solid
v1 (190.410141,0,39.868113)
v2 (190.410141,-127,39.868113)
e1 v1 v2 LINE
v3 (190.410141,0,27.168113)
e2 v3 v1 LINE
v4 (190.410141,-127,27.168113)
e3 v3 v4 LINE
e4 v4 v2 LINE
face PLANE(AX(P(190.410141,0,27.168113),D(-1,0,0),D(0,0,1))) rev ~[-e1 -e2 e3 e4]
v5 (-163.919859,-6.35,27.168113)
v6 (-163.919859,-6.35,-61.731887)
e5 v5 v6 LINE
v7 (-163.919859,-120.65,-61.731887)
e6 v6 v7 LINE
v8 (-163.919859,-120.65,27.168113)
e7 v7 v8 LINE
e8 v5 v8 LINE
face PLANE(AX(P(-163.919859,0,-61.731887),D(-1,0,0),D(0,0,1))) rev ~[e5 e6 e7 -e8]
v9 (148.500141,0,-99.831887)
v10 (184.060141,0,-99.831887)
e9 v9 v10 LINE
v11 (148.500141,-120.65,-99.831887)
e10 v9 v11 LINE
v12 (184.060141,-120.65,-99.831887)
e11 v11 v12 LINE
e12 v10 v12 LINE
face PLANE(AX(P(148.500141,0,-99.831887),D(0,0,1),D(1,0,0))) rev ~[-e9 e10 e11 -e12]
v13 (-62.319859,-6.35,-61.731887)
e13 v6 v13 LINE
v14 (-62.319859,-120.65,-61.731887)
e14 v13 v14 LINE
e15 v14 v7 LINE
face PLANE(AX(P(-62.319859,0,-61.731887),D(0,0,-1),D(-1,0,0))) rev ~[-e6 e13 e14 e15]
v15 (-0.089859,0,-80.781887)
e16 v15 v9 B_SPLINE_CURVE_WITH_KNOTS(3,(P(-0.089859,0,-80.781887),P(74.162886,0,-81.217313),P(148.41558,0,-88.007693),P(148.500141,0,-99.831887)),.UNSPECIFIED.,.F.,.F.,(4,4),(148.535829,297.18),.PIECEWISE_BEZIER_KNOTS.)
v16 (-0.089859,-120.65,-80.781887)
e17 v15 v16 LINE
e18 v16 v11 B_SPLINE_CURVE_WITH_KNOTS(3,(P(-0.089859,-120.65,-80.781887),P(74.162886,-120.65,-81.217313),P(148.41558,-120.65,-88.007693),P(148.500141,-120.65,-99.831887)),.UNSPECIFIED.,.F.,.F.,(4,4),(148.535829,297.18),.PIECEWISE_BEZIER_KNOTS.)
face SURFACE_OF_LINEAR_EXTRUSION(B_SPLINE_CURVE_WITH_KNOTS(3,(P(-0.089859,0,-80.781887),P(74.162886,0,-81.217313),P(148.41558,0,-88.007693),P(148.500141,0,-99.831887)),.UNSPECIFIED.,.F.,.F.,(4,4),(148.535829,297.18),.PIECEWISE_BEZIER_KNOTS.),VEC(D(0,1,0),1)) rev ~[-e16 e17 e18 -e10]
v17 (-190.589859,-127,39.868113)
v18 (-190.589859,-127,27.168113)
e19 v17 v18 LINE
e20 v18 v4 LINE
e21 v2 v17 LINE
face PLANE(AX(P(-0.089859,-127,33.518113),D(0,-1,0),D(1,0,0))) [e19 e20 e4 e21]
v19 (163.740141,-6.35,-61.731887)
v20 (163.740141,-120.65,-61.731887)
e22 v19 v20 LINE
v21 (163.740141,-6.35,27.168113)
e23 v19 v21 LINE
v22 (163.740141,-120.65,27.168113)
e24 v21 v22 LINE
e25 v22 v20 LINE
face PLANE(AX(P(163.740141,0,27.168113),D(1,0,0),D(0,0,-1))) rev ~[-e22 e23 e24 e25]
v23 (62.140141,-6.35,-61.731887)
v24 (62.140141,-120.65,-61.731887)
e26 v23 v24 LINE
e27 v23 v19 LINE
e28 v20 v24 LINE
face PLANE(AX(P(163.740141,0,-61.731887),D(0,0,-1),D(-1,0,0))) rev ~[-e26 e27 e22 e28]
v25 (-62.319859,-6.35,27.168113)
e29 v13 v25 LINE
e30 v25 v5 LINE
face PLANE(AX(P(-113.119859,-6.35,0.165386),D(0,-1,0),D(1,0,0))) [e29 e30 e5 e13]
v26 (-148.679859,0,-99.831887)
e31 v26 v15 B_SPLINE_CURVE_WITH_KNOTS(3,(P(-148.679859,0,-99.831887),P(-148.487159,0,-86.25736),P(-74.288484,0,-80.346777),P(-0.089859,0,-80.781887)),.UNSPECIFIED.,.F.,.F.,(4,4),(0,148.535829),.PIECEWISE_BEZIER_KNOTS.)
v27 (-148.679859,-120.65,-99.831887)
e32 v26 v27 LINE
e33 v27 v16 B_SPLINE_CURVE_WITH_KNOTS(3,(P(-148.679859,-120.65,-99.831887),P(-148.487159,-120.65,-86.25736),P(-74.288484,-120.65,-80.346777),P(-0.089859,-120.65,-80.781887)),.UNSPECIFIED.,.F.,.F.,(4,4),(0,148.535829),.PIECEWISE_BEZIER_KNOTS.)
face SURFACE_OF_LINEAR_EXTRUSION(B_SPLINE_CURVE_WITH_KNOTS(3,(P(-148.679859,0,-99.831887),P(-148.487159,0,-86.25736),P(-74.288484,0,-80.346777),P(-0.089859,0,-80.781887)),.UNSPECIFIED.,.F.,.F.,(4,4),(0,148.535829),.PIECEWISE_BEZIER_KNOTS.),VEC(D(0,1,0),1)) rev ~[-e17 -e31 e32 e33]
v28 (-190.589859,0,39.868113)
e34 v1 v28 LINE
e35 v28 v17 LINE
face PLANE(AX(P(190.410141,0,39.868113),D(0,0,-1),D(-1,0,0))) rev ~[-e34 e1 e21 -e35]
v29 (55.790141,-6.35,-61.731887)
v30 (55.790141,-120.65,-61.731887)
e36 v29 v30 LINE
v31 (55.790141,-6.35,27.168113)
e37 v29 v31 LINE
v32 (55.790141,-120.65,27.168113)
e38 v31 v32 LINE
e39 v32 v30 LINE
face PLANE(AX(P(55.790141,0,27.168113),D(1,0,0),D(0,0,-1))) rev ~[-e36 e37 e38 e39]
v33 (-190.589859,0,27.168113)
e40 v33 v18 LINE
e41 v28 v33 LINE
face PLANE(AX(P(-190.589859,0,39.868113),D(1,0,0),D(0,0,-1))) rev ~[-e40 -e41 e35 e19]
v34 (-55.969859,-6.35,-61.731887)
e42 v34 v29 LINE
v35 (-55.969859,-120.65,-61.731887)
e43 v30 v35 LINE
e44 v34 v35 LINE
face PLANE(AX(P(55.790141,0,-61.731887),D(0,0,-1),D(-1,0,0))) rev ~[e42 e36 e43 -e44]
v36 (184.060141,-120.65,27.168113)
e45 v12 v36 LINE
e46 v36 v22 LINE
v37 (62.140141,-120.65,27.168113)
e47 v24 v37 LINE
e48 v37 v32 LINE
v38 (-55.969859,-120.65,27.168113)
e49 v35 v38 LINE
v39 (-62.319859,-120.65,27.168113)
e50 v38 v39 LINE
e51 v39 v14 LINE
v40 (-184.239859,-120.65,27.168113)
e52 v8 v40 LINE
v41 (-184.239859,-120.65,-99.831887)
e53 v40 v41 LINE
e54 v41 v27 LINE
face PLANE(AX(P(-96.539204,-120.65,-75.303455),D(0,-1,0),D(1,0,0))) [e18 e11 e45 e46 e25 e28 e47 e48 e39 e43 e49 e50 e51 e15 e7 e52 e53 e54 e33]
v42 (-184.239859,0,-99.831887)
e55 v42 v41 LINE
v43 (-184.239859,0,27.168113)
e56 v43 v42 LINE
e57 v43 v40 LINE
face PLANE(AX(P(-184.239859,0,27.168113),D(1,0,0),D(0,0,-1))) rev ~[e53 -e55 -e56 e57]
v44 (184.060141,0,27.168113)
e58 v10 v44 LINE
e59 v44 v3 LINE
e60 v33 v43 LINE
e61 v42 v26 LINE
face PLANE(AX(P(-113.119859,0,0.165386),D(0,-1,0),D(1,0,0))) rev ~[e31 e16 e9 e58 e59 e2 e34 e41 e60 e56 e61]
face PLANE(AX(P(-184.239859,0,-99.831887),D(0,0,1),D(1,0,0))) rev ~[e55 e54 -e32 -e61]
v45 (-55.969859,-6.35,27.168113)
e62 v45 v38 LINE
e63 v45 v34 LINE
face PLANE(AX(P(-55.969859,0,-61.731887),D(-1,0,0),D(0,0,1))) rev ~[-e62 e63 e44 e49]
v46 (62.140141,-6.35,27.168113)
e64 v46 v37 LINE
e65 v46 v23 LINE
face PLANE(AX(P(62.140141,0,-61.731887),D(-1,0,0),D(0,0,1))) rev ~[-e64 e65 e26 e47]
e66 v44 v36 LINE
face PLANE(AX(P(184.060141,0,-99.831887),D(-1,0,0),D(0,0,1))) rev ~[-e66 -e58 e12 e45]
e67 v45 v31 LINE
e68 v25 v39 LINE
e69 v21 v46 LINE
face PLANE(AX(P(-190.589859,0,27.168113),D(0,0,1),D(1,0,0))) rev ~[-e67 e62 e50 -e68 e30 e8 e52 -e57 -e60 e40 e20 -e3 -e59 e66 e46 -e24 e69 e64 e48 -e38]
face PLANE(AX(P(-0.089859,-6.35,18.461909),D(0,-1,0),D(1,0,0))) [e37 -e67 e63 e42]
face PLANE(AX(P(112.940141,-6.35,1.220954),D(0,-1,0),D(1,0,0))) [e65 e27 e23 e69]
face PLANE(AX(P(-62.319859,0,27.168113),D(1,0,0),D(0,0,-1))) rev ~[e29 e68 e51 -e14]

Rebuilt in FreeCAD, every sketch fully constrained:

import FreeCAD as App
import Part
import Sketcher
from FreeCAD import Vector
Q = App.Units.Quantity


def add_polygon(sketch, points):
    """Adds a closed chain of lines whose ends are joined by coincident constraints."""
    first, n = sketch.GeometryCount, len(points)
    for a, b in zip(points, points[1:] + points[:1]):
        sketch.addGeometry(Part.LineSegment(App.Vector(*a, 0), App.Vector(*b, 0)), False)
    for i in range(n):
        sketch.addConstraint(Sketcher.Constraint("Coincident", first + i, 2, first + (i + 1) % n, 1))

doc = App.newDocument("Part")
body = doc.addObject("PartDesign::Body", "Body")

# Sketch on XZ plane
sketch1 = body.newObject("Sketcher::SketchObject", "Sketch")
sketch1.AttachmentSupport = (doc.getObject("XZ_Plane"), [""])
sketch1.MapMode = "FlatFace"
add_polygon(sketch1, [(190, 40), (-191, 40), (-191, 27), (190, 27)])  # lines 0-3
sketch1.addConstraint([
    Sketcher.Constraint("Horizontal", 0),
    Sketcher.Constraint("Vertical", 1),
    Sketcher.Constraint("Horizontal", 2),
    Sketcher.Constraint("Vertical", 3),
    Sketcher.Constraint("DistanceX", 0, 2, 0, 1, Q("15 in")),
    Sketcher.Constraint("DistanceY", 1, 2, 1, 1, Q("0.5 in")),
    Sketcher.Constraint("DistanceX", 0, 2, -1, 1, 190.589859),
    Sketcher.Constraint("DistanceY", -1, 1, 0, 2, 39.868113),
])
pad1 = body.newObject("PartDesign::Pad", "Pad")
pad1.Profile = sketch1
pad1.Length = Q("5 in")

# Sketch on XZ plane
sketch2 = body.newObject("Sketcher::SketchObject", "Sketch001")
sketch2.AttachmentSupport = (doc.getObject("XZ_Plane"), [""])
sketch2.MapMode = "FlatFace"
sketch2.addGeometry([
    Part.LineSegment(Vector(-184.239859, -99.831887, 0), Vector(-148.679859, -99.831887, 0)),  # 0
    Part.BSplineCurve([Vector(-148.679859, -99.831887, 0), Vector(-148.487159, -86.25736, 0), Vector(-74.288484, -80.346777, 0), Vector(-0.089859, -80.781887, 0)], [4, 4], [0, 148.535829], False, 3, [1, 1, 1, 1], False),  # 1
    Part.BSplineCurve([Vector(-0.089859, -80.781887, 0), Vector(74.162886, -81.217313, 0), Vector(148.41558, -88.007693, 0), Vector(148.500141, -99.831887, 0)], [4, 4], [148.535829, 297.18], False, 3, [1, 1, 1, 1], False),  # 2
    Part.LineSegment(Vector(148.500141, -99.831887, 0), Vector(184.060141, -99.831887, 0)),  # 3
    Part.LineSegment(Vector(184.060141, -99.831887, 0), Vector(184.060141, 27.168113, 0)),  # 4
    Part.LineSegment(Vector(184.060141, 27.168113, 0), Vector(163.740141, 27.168113, 0)),  # 5
    Part.LineSegment(Vector(163.740141, 27.168113, 0), Vector(163.740141, -61.731887, 0)),  # 6
    Part.LineSegment(Vector(163.740141, -61.731887, 0), Vector(62.140141, -61.731887, 0)),  # 7
    Part.LineSegment(Vector(62.140141, -61.731887, 0), Vector(62.140141, 27.168113, 0)),  # 8
    Part.LineSegment(Vector(62.140141, 27.168113, 0), Vector(55.790141, 27.168113, 0)),  # 9
    Part.LineSegment(Vector(55.790141, 27.168113, 0), Vector(55.790141, -61.731887, 0)),  # 10
    Part.LineSegment(Vector(55.790141, -61.731887, 0), Vector(-55.969859, -61.731887, 0)),  # 11
    Part.LineSegment(Vector(-55.969859, -61.731887, 0), Vector(-55.969859, 27.168113, 0)),  # 12
    Part.LineSegment(Vector(-55.969859, 27.168113, 0), Vector(-62.319859, 27.168113, 0)),  # 13
    Part.LineSegment(Vector(-62.319859, 27.168113, 0), Vector(-62.319859, -61.731887, 0)),  # 14
    Part.LineSegment(Vector(-62.319859, -61.731887, 0), Vector(-163.919859, -61.731887, 0)),  # 15
    Part.LineSegment(Vector(-163.919859, -61.731887, 0), Vector(-163.919859, 27.168113, 0)),  # 16
    Part.LineSegment(Vector(-163.919859, 27.168113, 0), Vector(-184.239859, 27.168113, 0)),  # 17
    Part.LineSegment(Vector(-184.239859, 27.168113, 0), Vector(-184.239859, -99.831887, 0)),  # 18
], False)
sketch2.addConstraint([
    Sketcher.Constraint("Block", 1),
    Sketcher.Constraint("Block", 2),
    Sketcher.Constraint("Coincident", 0, 2, 1, 1),
    Sketcher.Constraint("Coincident", 2, 2, 3, 1),
    Sketcher.Constraint("Coincident", 3, 2, 4, 1),
    Sketcher.Constraint("Coincident", 4, 2, 5, 1),
    Sketcher.Constraint("Coincident", 5, 2, 6, 1),
    Sketcher.Constraint("Coincident", 6, 2, 7, 1),
    Sketcher.Constraint("Coincident", 7, 2, 8, 1),
    Sketcher.Constraint("Coincident", 8, 2, 9, 1),
    Sketcher.Constraint("Coincident", 9, 2, 10, 1),
    Sketcher.Constraint("Coincident", 10, 2, 11, 1),
    Sketcher.Constraint("Coincident", 11, 2, 12, 1),
    Sketcher.Constraint("Coincident", 12, 2, 13, 1),
    Sketcher.Constraint("Coincident", 13, 2, 14, 1),
    Sketcher.Constraint("Coincident", 14, 2, 15, 1),
    Sketcher.Constraint("Coincident", 15, 2, 16, 1),
    Sketcher.Constraint("Coincident", 16, 2, 17, 1),
    Sketcher.Constraint("Coincident", 17, 2, 18, 1),
    Sketcher.Constraint("Coincident", 18, 2, 0, 1),
    Sketcher.Constraint("Horizontal", 0),
    Sketcher.Constraint("Horizontal", 3),
    Sketcher.Constraint("Vertical", 4),
    Sketcher.Constraint("Horizontal", 5),
    Sketcher.Constraint("Vertical", 6),
    Sketcher.Constraint("Horizontal", 7),
    Sketcher.Constraint("Vertical", 8),
    Sketcher.Constraint("Horizontal", 9),
    Sketcher.Constraint("Vertical", 10),
    Sketcher.Constraint("Horizontal", 11),
    Sketcher.Constraint("Vertical", 12),
    Sketcher.Constraint("Horizontal", 13),
    Sketcher.Constraint("Vertical", 14),
    Sketcher.Constraint("Horizontal", 15),
    Sketcher.Constraint("Vertical", 16),
    Sketcher.Constraint("Horizontal", 17),
    Sketcher.Constraint("Vertical", 18),
    Sketcher.Constraint("Horizontal", 5, 2, 8, 2),
    Sketcher.Constraint("Horizontal", 7, 2, 10, 2),
    Sketcher.Constraint("Horizontal", 9, 2, 12, 2),
    Sketcher.Constraint("Horizontal", 11, 2, 14, 2),
    Sketcher.Constraint("Horizontal", 13, 2, 16, 2),
    Sketcher.Constraint("Equal", 0, 3),
    Sketcher.Constraint("Equal", 9, 13),
    Sketcher.Constraint("Equal", 7, 15),
    Sketcher.Constraint("Equal", 5, 17),
    Sketcher.Constraint("DistanceX", 7, 2, 7, 1, Q("4 in")),
    Sketcher.Constraint("DistanceY", 4, 1, 4, 2, Q("5 in")),
    Sketcher.Constraint("DistanceX", 0, 1, 0, 2, Q("1.4 in")),
    Sketcher.Constraint("DistanceX", 5, 2, 5, 1, Q("0.8 in")),
    Sketcher.Constraint("DistanceX", 11, 2, 11, 1, Q("4.4 in")),
    Sketcher.Constraint("DistanceY", 6, 2, 6, 1, Q("3.5 in")),
])
pad2 = body.newObject("PartDesign::Pad", "Pad001")
pad2.Profile = sketch2
pad2.Length = Q("4.75 in")

# Sketch on XZ plane
sketch3 = body.newObject("Sketcher::SketchObject", "Sketch002")
sketch3.AttachmentSupport = (doc.getObject("XZ_Plane"), [""])
sketch3.MapMode = "FlatFace"
add_polygon(sketch3, [(-62, 27), (-164, 27), (-164, -62), (-62, -62)])  # lines 0-3
add_polygon(sketch3, [(-56, 27), (-56, -62), (56, -62), (56, 27)])  # lines 4-7
add_polygon(sketch3, [(164, 27), (62, 27), (62, -62), (164, -62)])  # lines 8-11
sketch3.addConstraint([
    Sketcher.Constraint("Horizontal", 0),
    Sketcher.Constraint("Vertical", 1),
    Sketcher.Constraint("Horizontal", 2),
    Sketcher.Constraint("Vertical", 3),
    Sketcher.Constraint("Vertical", 4),
    Sketcher.Constraint("Horizontal", 5),
    Sketcher.Constraint("Vertical", 6),
    Sketcher.Constraint("Horizontal", 7),
    Sketcher.Constraint("Horizontal", 8),
    Sketcher.Constraint("Vertical", 9),
    Sketcher.Constraint("Horizontal", 10),
    Sketcher.Constraint("Vertical", 11),
    Sketcher.Constraint("Horizontal", 2, 2, 4, 2),
    Sketcher.Constraint("Horizontal", 3, 2, 6, 2),
    Sketcher.Constraint("Horizontal", 7, 2, 8, 2),
    Sketcher.Constraint("Horizontal", 5, 2, 9, 2),
    Sketcher.Constraint("Equal", 2, 8),
    Sketcher.Constraint("DistanceX", 0, 2, 0, 1, Q("4 in")),
    Sketcher.Constraint("DistanceX", 5, 1, 5, 2, Q("4.4 in")),
    Sketcher.Constraint("DistanceY", 1, 2, 1, 1, Q("3.5 in")),
    Sketcher.Constraint("DistanceX", 3, 2, 8, 2, Q("4.9 in")),
    Sketcher.Constraint("DistanceX", 2, 2, 4, 2, Q("0.25 in")),
    Sketcher.Constraint("DistanceX", 0, 2, -1, 1, 163.919859),
    Sketcher.Constraint("DistanceY", -1, 1, 0, 2, 27.168113),
])
pad3 = body.newObject("PartDesign::Pad", "Pad002")
pad3.Profile = sketch3
pad3.Length = Q("0.25 in")

doc.recompute()
